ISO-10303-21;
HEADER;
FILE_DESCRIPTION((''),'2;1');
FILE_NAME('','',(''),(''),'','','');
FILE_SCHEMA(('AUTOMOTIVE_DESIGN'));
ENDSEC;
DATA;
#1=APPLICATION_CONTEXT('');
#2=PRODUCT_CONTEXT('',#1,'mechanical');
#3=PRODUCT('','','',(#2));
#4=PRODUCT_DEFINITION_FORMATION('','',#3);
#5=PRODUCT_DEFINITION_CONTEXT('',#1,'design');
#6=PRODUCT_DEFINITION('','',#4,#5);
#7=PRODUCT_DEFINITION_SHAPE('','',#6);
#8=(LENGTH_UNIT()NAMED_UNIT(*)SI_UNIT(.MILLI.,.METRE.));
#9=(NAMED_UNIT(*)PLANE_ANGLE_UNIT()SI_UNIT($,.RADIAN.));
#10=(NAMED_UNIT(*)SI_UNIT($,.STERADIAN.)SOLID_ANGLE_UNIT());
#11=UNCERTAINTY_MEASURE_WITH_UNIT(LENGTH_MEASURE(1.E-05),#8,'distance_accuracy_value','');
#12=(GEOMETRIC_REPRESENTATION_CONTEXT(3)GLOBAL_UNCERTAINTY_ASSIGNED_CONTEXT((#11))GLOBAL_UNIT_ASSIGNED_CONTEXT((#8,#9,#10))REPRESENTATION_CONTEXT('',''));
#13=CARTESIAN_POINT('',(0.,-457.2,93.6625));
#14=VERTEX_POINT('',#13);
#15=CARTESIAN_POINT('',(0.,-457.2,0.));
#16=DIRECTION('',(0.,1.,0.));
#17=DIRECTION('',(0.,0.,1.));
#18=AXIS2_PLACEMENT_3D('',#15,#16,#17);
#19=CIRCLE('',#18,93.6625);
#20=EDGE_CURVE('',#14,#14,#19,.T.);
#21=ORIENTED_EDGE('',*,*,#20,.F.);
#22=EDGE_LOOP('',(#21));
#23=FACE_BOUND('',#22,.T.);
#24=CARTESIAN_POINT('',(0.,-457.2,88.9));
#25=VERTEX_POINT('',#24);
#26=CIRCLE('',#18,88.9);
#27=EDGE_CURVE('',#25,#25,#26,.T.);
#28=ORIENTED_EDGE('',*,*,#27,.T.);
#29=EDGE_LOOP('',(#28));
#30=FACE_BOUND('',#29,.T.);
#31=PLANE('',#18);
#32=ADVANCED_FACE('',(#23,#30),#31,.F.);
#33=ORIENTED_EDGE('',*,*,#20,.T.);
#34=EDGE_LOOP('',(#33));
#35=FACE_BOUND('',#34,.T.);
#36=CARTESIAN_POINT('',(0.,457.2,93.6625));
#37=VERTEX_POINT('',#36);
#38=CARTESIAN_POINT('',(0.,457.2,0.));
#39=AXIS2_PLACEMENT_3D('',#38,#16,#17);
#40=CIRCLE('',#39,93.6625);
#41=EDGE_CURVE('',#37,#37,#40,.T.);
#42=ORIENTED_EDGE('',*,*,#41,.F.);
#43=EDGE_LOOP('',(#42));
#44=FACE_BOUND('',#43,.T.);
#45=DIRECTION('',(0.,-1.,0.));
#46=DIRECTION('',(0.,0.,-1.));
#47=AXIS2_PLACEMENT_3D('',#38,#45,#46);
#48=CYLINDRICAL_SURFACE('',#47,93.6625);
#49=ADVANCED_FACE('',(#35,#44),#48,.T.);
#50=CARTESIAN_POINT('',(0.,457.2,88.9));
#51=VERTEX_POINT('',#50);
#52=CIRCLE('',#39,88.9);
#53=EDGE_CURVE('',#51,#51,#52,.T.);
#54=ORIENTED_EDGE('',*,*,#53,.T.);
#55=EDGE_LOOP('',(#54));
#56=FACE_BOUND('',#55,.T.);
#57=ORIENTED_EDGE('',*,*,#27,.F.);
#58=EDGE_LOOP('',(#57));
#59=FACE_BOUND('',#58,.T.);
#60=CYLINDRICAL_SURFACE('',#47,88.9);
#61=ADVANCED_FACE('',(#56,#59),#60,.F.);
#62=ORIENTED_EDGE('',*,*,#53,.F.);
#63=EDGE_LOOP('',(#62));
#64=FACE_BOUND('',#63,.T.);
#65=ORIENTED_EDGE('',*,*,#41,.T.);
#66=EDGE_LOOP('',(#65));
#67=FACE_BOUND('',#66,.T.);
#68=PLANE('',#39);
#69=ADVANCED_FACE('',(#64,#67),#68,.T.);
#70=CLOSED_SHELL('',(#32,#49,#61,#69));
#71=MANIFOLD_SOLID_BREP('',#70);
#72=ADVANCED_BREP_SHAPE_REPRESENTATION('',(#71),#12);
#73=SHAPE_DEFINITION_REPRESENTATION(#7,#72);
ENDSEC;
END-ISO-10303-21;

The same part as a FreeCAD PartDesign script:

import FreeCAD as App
import Part
import Sketcher
from FreeCAD import Vector
Q = App.Units.Quantity

doc = App.newDocument("Part")
body = doc.addObject("PartDesign::Body", "Body")

# Sketch on XZ plane
sketch1 = body.newObject("Sketcher::SketchObject", "Sketch")
sketch1.AttachmentSupport = (doc.getObject("XZ_Plane"), [""])
sketch1.MapMode = "FlatFace"
sketch1.addGeometry([
    Part.Circle(Vector(0, 0, 0), Vector(0, 0, 1), 94),
    Part.Circle(Vector(0, 0, 0), Vector(0, 0, 1), 89),
], False)
sketch1.addConstraint([
    Sketcher.Constraint("Coincident", 0, 3, -1, 1),
    Sketcher.Constraint("Coincident", 1, 3, -1, 1),
    Sketcher.Constraint("Diameter", 1, Q("7 in")),
    Sketcher.Constraint("Diameter", 0, Q("7.375 in")),
])
pad1 = body.newObject("PartDesign::Pad", "Pad")
pad1.Profile = sketch1
pad1.Length = Q("36 in")
pad1.Midplane = True

doc.recompute()
